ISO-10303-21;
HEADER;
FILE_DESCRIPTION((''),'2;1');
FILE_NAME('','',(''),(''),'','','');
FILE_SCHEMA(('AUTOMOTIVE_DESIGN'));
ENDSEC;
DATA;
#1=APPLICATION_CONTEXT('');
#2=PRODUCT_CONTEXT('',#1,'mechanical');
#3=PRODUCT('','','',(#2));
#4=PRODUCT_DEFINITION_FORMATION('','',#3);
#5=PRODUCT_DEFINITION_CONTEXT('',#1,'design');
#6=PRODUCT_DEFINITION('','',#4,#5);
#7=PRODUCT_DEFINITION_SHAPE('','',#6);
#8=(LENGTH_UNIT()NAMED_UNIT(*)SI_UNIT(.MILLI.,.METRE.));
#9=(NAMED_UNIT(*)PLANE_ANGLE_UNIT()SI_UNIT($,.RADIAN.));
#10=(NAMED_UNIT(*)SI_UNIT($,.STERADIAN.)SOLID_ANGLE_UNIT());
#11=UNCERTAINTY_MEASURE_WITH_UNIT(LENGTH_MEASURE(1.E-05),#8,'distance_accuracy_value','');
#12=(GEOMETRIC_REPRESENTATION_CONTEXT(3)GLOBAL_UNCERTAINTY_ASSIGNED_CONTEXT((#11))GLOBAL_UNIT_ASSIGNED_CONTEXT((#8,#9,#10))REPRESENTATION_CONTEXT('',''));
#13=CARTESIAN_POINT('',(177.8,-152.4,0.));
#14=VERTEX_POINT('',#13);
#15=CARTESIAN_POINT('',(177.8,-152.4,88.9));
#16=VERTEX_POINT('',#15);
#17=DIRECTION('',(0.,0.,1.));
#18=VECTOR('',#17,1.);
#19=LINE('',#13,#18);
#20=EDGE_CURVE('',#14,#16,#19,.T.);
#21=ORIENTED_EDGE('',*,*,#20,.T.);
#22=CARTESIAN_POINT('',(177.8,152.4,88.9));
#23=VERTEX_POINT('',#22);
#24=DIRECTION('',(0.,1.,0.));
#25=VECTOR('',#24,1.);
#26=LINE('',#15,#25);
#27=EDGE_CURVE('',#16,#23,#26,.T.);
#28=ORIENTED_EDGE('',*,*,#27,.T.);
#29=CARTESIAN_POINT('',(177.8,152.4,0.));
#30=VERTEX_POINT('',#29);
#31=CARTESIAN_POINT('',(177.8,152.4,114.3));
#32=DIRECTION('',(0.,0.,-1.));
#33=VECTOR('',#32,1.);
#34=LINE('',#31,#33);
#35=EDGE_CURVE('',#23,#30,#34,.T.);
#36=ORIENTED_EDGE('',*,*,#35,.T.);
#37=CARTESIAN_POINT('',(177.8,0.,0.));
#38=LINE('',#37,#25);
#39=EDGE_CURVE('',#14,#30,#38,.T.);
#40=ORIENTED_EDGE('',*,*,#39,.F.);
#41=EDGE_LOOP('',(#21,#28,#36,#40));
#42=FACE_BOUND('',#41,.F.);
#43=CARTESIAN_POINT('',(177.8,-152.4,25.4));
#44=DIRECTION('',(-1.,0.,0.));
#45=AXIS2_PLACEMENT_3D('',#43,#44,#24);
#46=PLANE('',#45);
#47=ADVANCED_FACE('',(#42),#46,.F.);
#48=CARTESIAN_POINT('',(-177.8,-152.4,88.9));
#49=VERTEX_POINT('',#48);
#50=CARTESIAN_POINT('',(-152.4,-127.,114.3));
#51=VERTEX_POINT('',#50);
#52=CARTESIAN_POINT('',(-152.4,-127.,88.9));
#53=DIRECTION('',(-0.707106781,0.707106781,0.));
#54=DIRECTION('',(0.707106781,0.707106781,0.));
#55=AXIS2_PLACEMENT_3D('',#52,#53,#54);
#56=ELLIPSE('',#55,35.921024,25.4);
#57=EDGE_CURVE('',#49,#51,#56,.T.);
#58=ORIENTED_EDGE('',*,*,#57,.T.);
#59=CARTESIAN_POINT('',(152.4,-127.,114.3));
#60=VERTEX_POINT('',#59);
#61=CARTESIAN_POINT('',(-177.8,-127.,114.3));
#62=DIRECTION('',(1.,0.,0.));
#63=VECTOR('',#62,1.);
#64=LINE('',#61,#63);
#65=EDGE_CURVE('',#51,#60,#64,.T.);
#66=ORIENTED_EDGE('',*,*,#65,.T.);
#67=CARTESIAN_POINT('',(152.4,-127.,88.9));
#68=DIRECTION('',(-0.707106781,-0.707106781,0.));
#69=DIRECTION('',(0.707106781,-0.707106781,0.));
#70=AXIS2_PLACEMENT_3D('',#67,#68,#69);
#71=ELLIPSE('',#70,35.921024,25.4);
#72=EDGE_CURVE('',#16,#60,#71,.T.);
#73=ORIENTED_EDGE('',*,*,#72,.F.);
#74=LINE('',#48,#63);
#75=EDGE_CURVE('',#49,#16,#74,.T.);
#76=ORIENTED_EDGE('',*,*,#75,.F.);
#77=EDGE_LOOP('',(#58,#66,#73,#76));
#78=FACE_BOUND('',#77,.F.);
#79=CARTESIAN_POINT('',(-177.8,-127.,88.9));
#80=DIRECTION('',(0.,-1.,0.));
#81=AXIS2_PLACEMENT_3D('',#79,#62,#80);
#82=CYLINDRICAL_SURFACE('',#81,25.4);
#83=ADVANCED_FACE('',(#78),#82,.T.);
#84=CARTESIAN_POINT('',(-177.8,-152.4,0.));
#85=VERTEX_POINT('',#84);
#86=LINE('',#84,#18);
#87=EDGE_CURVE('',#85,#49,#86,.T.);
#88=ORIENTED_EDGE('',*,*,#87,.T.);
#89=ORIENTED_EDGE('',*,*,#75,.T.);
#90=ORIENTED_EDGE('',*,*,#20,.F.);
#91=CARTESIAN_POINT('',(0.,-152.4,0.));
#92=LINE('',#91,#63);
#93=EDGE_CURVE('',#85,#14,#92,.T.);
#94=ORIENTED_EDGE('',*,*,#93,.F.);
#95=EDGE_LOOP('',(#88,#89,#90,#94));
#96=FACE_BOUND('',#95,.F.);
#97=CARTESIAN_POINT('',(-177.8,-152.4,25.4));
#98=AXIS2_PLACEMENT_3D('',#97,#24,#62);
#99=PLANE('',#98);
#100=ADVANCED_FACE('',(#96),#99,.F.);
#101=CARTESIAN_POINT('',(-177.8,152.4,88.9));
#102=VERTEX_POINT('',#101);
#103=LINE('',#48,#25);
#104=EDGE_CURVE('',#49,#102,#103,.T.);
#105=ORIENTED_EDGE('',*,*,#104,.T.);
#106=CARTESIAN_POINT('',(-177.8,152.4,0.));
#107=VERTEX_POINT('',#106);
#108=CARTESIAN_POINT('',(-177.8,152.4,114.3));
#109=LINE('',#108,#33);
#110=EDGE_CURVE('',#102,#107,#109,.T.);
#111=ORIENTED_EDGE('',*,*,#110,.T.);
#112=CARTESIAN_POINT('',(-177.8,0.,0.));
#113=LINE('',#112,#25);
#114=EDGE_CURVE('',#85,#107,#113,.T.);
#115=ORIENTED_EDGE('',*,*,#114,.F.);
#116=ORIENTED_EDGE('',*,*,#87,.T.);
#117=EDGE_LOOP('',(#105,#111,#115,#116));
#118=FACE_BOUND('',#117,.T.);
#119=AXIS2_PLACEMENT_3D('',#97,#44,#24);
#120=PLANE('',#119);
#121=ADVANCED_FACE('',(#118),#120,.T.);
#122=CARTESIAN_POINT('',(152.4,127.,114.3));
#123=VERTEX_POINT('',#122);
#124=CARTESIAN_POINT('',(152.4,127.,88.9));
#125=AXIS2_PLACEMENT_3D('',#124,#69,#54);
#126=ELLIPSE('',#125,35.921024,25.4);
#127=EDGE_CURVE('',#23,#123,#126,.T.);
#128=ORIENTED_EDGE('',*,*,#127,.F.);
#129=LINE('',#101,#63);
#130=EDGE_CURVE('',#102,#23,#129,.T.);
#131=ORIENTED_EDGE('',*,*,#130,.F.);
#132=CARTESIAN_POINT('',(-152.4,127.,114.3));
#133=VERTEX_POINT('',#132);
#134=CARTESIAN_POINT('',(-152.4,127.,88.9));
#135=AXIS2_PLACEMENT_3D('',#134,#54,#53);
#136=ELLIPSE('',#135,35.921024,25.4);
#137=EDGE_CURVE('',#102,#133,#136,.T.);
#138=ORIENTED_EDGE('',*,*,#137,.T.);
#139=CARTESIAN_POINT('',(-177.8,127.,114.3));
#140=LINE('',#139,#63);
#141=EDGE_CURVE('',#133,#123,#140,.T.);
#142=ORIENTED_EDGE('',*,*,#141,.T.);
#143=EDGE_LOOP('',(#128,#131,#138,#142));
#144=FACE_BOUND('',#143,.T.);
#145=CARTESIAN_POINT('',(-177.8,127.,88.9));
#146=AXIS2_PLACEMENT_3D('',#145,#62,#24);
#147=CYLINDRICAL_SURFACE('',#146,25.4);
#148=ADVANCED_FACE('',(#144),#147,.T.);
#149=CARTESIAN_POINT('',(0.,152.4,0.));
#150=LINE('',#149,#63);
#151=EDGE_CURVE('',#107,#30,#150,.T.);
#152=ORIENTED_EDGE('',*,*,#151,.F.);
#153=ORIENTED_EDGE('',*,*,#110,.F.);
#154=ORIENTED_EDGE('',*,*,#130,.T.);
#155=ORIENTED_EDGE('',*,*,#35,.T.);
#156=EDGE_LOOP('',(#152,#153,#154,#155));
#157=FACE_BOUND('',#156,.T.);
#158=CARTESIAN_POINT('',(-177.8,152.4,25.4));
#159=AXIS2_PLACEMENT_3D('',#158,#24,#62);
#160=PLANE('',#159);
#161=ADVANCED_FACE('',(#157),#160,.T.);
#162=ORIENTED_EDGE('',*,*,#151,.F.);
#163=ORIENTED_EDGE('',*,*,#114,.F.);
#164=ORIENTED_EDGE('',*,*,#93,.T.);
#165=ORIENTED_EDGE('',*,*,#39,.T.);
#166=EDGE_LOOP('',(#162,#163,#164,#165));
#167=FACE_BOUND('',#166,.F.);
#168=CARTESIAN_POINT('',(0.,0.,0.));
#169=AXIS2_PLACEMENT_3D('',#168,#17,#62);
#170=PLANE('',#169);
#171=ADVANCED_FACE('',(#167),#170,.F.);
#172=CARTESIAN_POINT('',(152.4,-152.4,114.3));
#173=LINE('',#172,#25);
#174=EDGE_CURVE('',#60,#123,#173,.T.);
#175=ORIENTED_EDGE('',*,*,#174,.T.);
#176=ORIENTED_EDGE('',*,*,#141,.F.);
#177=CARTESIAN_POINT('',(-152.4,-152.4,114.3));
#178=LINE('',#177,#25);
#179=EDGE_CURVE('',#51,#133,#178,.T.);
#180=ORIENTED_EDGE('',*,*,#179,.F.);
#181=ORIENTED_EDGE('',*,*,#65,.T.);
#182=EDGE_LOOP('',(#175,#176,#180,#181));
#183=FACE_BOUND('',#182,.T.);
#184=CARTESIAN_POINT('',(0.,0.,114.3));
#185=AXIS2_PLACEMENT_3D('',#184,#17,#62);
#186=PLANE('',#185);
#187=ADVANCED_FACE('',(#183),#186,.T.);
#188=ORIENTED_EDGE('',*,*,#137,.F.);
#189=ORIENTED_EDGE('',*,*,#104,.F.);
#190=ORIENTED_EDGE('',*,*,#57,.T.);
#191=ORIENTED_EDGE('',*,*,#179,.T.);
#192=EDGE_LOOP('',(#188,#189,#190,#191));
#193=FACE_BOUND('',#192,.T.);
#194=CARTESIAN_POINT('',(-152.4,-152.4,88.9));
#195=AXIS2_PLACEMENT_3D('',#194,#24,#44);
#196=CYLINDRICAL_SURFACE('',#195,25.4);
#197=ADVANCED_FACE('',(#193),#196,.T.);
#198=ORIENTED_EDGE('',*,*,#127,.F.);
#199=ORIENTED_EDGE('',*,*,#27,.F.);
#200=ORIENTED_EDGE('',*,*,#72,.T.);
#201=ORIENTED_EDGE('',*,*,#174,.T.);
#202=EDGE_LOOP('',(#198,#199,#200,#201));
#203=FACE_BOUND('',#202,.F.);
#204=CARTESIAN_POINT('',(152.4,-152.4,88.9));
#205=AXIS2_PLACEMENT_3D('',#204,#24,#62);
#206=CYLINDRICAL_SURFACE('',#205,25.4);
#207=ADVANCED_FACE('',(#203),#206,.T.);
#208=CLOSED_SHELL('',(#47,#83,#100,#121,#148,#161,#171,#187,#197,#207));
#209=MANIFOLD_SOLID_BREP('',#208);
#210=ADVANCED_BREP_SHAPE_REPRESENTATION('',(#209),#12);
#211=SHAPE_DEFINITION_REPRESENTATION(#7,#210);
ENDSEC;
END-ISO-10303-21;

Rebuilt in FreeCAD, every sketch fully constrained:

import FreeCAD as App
import Part
import Sketcher

V = App.Vector
Q = App.Units.Quantity


def edges_at(feature, points):
    """Names of the edges that pass closest to the given points."""
    edges = feature.Shape.Edges
    near = lambda p: min(range(len(edges)), key=lambda i: edges[i].distToShape(Part.Vertex(*p))[0])
    return sorted({f"Edge{near(p) + 1}" for p in points})

doc = App.newDocument("Part")
body = doc.addObject("PartDesign::Body", "Body")

sketch1 = body.newObject("Sketcher::SketchObject", "Sketch")
sketch1.AttachmentSupport = (doc.getObject("XY_Plane"), [""])
sketch1.MapMode = "FlatFace"
sketch1.addGeometry([
    Part.LineSegment(V(-177.8, 152.4, 0), V(-177.8, -152.4, 0)),
    Part.LineSegment(V(-177.8, -152.4, 0), V(177.8, -152.4, 0)),
    Part.LineSegment(V(177.8, -152.4, 0), V(177.8, 152.4, 0)),
    Part.LineSegment(V(177.8, 152.4, 0), V(-177.8, 152.4, 0)),
], False)
sketch1.addConstraint([
    Sketcher.Constraint("Coincident", 0, 2, 1, 1),
    Sketcher.Constraint("Coincident", 1, 2, 2, 1),
    Sketcher.Constraint("Coincident", 2, 2, 3, 1),
    Sketcher.Constraint("Coincident", 3, 2, 0, 1),
    Sketcher.Constraint("Vertical", 0),
    Sketcher.Constraint("Horizontal", 1),
    Sketcher.Constraint("Vertical", 2),
    Sketcher.Constraint("Horizontal", 3),
    Sketcher.Constraint("Symmetric", 0, 2, 2, 2, -1, 1),
    Sketcher.Constraint("DistanceX", 1, 1, 1, 2, Q("14 in")),
    Sketcher.Constraint("DistanceY", 0, 2, 0, 1, Q("12 in")),
])
pad1 = body.newObject("PartDesign::Pad", "Pad")
pad1.Profile = sketch1
pad1.Length = Q("1 in")

sketch2 = body.newObject("Sketcher::SketchObject", "Sketch001")
sketch2.AttachmentSupport = (doc.getObject("XY_Plane"), [""])
sketch2.MapMode = "FlatFace"
sketch2.AttachmentOffset = App.Placement(V(0, 0, 1 * 25.4), App.Rotation())
sketch2.addGeometry([
    Part.LineSegment(V(-177.8, 152.4, 0), V(-177.8, -152.4, 0)),
    Part.LineSegment(V(-177.8, -152.4, 0), V(177.8, -152.4, 0)),
    Part.LineSegment(V(177.8, -152.4, 0), V(177.8, 152.4, 0)),
    Part.LineSegment(V(177.8, 152.4, 0), V(-177.8, 152.4, 0)),
], False)
sketch2.addConstraint([
    Sketcher.Constraint("Coincident", 0, 2, 1, 1),
    Sketcher.Constraint("Coincident", 1, 2, 2, 1),
    Sketcher.Constraint("Coincident", 2, 2, 3, 1),
    Sketcher.Constraint("Coincident", 3, 2, 0, 1),
    Sketcher.Constraint("Vertical", 0),
    Sketcher.Constraint("Horizontal", 1),
    Sketcher.Constraint("Vertical", 2),
    Sketcher.Constraint("Horizontal", 3),
    Sketcher.Constraint("Symmetric", 0, 2, 2, 2, -1, 1),
    Sketcher.Constraint("DistanceX", 1, 1, 1, 2, Q("14 in")),
    Sketcher.Constraint("DistanceY", 0, 2, 0, 1, Q("12 in")),
])
pad2 = body.newObject("PartDesign::Pad", "Pad001")
pad2.Profile = sketch2
pad2.Length = Q("3.5 in")
doc.recompute()

fillet = body.newObject("PartDesign::Fillet", "Fillet")
fillet.Base = (pad2, edges_at(pad2, [
    (-177.8, 0, 114.3),
    (0, -152.4, 114.3),
    (177.8, 0, 114.3),
    (0, 152.4, 114.3),
]))
fillet.Radius = Q("1 in")

doc.recompute()
